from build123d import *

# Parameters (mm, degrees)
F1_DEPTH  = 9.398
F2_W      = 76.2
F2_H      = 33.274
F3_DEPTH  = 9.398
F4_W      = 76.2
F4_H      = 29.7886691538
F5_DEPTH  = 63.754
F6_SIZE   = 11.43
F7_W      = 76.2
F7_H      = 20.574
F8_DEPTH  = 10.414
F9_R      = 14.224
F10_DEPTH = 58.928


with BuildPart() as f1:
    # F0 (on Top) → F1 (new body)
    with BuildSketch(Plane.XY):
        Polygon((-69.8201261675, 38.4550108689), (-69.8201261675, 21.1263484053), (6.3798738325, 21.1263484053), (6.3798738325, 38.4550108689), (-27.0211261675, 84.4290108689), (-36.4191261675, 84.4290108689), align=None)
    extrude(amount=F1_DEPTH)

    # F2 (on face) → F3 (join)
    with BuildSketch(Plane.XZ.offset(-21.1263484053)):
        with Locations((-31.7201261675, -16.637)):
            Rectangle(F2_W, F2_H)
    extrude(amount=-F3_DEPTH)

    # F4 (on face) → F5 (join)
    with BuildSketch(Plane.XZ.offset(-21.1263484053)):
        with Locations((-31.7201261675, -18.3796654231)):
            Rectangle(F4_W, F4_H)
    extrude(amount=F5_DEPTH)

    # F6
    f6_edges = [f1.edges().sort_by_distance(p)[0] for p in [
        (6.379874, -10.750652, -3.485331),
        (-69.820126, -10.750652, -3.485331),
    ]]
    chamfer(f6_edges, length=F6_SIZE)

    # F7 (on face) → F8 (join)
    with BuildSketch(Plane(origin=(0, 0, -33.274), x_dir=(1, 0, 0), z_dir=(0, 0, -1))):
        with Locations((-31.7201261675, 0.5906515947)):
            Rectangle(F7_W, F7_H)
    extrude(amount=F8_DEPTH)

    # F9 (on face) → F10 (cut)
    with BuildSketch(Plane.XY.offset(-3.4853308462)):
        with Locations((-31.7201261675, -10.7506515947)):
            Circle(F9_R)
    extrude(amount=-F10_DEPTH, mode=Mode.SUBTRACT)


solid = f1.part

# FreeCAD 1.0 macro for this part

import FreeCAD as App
import Part
import Sketcher
Q = App.Units.Quantity


def edges_at(feature, points):
    """Names of the edges that pass closest to the given points."""
    edges = feature.Shape.Edges
    near = lambda p: min(range(len(edges)), key=lambda i: edges[i].distToShape(Part.Vertex(*p))[0])
    return sorted({f"Edge{near(p) + 1}" for p in points})


def add_polygon(sketch, points):
    """Adds a closed chain of lines whose ends are joined by coincident constraints."""
    first, n = sketch.GeometryCount, len(points)
    for a, b in zip(points, points[1:] + points[:1]):
        sketch.addGeometry(Part.LineSegment(App.Vector(*a, 0), App.Vector(*b, 0)), False)
    for i in range(n):
        sketch.addConstraint(Sketcher.Constraint("Coincident", first + i, 2, first + (i + 1) % n, 1))

doc = App.newDocument("Part")
body = doc.addObject("PartDesign::Body", "Body")

# Sketch on XY plane
sketch1 = doc.addObject("Sketcher::SketchObject", "Sketch")
body.addObject(sketch1)
sketch1.AttachmentSupport = (doc.XY_Plane, [""])
sketch1.MapMode = "FlatFace"
add_polygon(sketch1, [(-70, 38), (-70, 21), (6, 21), (6, 38), (-27, 84), (-36, 84)])  # lines 0-5
sketch1.addConstraint(Sketcher.Constraint("Vertical", 0))
sketch1.addConstraint(Sketcher.Constraint("Horizontal", 1))
sketch1.addConstraint(Sketcher.Constraint("Vertical", 2))
sketch1.addConstraint(Sketcher.Constraint("Horizontal", 4))
sketch1.addConstraint(Sketcher.Constraint("Horizontal", 2, 2, 5, 2))
sketch1.addConstraint(Sketcher.Constraint("Equal", 3, 5))
sketch1.addConstraint(Sketcher.Constraint("DistanceX", 1, 1, 1, 2, Q("3 in")))
sketch1.addConstraint(Sketcher.Constraint("DistanceX", 4, 2, 4, 1, Q("0.37 in")))
sketch1.addConstraint(Sketcher.Constraint("DistanceY", 2, 2, 3, 2, Q("1.81 in")))
sketch1.addConstraint(Sketcher.Constraint("DistanceY", 0, 2, 0, 1, 17.328662))
sketch1.addConstraint(Sketcher.Constraint("DistanceY", -1, 1, 0, 2, 21.126348))
sketch1.addConstraint(Sketcher.Constraint("DistanceX", 0, 2, -1, 1, 69.820126))
pad1 = doc.addObject("PartDesign::Pad", "Pad")
body.addObject(pad1)
pad1.Profile = sketch1
pad1.Length = Q("0.37 in")

# Sketch on XZ plane
sketch2 = doc.addObject("Sketcher::SketchObject", "Sketch001")
body.addObject(sketch2)
sketch2.AttachmentSupport = (doc.XZ_Plane, [""])
sketch2.MapMode = "FlatFace"
sketch2.AttachmentOffset = App.Placement(App.Vector(0, 0, -21.126348), App.Rotation())
add_polygon(sketch2, [(-70, 0), (-70, -33), (6, -33), (6, 0)])  # lines 0-3
sketch2.addConstraint(Sketcher.Constraint("Vertical", 0))
sketch2.addConstraint(Sketcher.Constraint("Horizontal", 1))
sketch2.addConstraint(Sketcher.Constraint("Vertical", 2))
sketch2.addConstraint(Sketcher.Constraint("Horizontal", 3))
sketch2.addConstraint(Sketcher.Constraint("PointOnObject", 2, 2, -1))
sketch2.addConstraint(Sketcher.Constraint("DistanceX", 1, 1, 1, 2, Q("3 in")))
sketch2.addConstraint(Sketcher.Constraint("DistanceY", 0, 2, 0, 1, Q("1.31 in")))
sketch2.addConstraint(Sketcher.Constraint("DistanceX", 0, 2, -1, 1, 69.820126))
pad2 = doc.addObject("PartDesign::Pad", "Pad001")
body.addObject(pad2)
pad2.Profile = sketch2
pad2.Length = Q("0.37 in")
pad2.Reversed = True

# Sketch on XZ plane
sketch3 = doc.addObject("Sketcher::SketchObject", "Sketch002")
body.addObject(sketch3)
sketch3.AttachmentSupport = (doc.XZ_Plane, [""])
sketch3.MapMode = "FlatFace"
sketch3.AttachmentOffset = App.Placement(App.Vector(0, 0, -21.126348), App.Rotation())
add_polygon(sketch3, [(-70, -3), (-70, -33), (6, -33), (6, -3)])  # lines 0-3
sketch3.addConstraint(Sketcher.Constraint("Vertical", 0))
sketch3.addConstraint(Sketcher.Constraint("Horizontal", 1))
sketch3.addConstraint(Sketcher.Constraint("Vertical", 2))
sketch3.addConstraint(Sketcher.Constraint("Horizontal", 3))
sketch3.addConstraint(Sketcher.Constraint("DistanceX", 1, 1, 1, 2, Q("3 in")))
sketch3.addConstraint(Sketcher.Constraint("DistanceY", 0, 2, -1, 1, Q("1.31 in")))
sketch3.addConstraint(Sketcher.Constraint("DistanceY", 0, 2, 0, 1, 29.788669))
sketch3.addConstraint(Sketcher.Constraint("DistanceX", 0, 2, -1, 1, 69.820126))
pad3 = doc.addObject("PartDesign::Pad", "Pad002")
body.addObject(pad3)
pad3.Profile = sketch3
pad3.Length = Q("2.51 in")
doc.recompute()

chamfer = doc.addObject("PartDesign::Chamfer", "Chamfer")
body.addObject(chamfer)
chamfer.Base = (pad3, edges_at(pad3, [(6.38, -10.751, -3.485), (-69.82, -10.751, -3.485)]))
chamfer.Size = Q("0.45 in")

# Sketch on XY plane
sketch4 = doc.addObject("Sketcher::SketchObject", "Sketch003")
body.addObject(sketch4)
sketch4.AttachmentSupport = (doc.XY_Plane, [""])
sketch4.MapMode = "FlatFace"
sketch4.AttachmentOffset = App.Placement(App.Vector(0, 0, -1.31 * 25.4), App.Rotation())
add_polygon(sketch4, [(-70, -11), (-70, 10), (6, 10), (6, -11)])  # lines 0-3
sketch4.addConstraint(Sketcher.Constraint("Vertical", 0))
sketch4.addConstraint(Sketcher.Constraint("Horizontal", 1))
sketch4.addConstraint(Sketcher.Constraint("Vertical", 2))
sketch4.addConstraint(Sketcher.Constraint("Horizontal", 3))
sketch4.addConstraint(Sketcher.Constraint("DistanceX", 1, 1, 1, 2, Q("3 in")))
sketch4.addConstraint(Sketcher.Constraint("DistanceY", 0, 1, 0, 2, Q("0.81 in")))
sketch4.addConstraint(Sketcher.Constraint("DistanceY", -1, 1, 0, 2, 9.696348))
sketch4.addConstraint(Sketcher.Constraint("DistanceX", 0, 2, -1, 1, 69.820126))
pad4 = doc.addObject("PartDesign::Pad", "Pad003")
body.addObject(pad4)
pad4.Profile = sketch4
pad4.Length = Q("0.41 in")
pad4.Reversed = True

# Sketch on XY plane
sketch5 = doc.addObject("Sketcher::SketchObject", "Sketch004")
body.addObject(sketch5)
sketch5.AttachmentSupport = (doc.XY_Plane, [""])
sketch5.MapMode = "FlatFace"
sketch5.AttachmentOffset = App.Placement(App.Vector(0, 0, -3.485331), App.Rotation())
sketch5.addGeometry(Part.Circle(App.Vector(-32, -11, 0), App.Vector(0, 0, 1), 14), False)
sketch5.addConstraint(Sketcher.Constraint("Diameter", 0, Q("1.12 in")))
sketch5.addConstraint(Sketcher.Constraint("DistanceY", 0, 3, -1, 1, 10.750652))
sketch5.addConstraint(Sketcher.Constraint("DistanceX", 0, 3, -1, 1, 31.720126))
pocket1 = doc.addObject("PartDesign::Pocket", "Pocket")
body.addObject(pocket1)
pocket1.Profile = sketch5
pocket1.Length = Q("2.32 in")

doc.recompute()
